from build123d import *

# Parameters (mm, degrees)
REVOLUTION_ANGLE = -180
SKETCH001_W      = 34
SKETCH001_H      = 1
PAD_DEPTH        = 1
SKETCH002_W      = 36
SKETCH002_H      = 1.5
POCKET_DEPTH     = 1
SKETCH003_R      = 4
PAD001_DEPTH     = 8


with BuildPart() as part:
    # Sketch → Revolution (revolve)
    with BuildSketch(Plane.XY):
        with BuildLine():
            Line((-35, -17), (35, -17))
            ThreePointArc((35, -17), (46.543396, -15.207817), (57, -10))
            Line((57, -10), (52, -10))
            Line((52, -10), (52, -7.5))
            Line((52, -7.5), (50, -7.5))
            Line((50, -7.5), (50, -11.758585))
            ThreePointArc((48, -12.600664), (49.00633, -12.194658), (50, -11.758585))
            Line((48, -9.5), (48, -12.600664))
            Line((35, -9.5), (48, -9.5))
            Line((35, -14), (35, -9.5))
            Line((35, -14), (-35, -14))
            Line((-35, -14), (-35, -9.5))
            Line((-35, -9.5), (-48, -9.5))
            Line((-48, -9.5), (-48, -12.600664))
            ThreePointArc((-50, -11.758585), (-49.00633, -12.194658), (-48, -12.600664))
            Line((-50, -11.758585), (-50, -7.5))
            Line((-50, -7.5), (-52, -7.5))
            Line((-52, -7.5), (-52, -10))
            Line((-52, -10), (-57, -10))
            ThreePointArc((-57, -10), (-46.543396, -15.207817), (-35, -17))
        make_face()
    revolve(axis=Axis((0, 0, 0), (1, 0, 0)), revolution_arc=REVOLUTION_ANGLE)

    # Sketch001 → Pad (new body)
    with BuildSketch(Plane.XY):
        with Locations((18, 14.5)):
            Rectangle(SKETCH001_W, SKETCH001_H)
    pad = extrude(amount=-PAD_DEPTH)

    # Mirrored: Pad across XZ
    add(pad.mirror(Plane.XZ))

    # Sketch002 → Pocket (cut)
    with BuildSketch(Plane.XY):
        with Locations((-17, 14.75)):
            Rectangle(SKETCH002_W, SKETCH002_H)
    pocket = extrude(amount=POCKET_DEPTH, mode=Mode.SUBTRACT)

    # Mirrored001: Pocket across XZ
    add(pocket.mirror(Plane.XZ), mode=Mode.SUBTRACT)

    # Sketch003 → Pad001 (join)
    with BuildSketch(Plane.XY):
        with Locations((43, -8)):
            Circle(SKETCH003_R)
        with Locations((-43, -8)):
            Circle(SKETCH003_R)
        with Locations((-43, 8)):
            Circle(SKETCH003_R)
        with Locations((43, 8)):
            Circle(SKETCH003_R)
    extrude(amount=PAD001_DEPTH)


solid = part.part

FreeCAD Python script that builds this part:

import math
import FreeCAD as App
import Part
import Sketcher


def add_polygon(sketch, points):
    """Adds a closed chain of lines whose ends are joined by coincident constraints."""
    first, n = sketch.GeometryCount, len(points)
    for a, b in zip(points, points[1:] + points[:1]):
        sketch.addGeometry(Part.LineSegment(App.Vector(*a, 0), App.Vector(*b, 0)), False)
    for i in range(n):
        sketch.addConstraint(Sketcher.Constraint("Coincident", first + i, 2, first + (i + 1) % n, 1))

doc = App.newDocument("Part")
body = doc.addObject("PartDesign::Body", "Body")

# Sketch on XY plane
sketch1 = body.newObject("Sketcher::SketchObject", "Sketch")
sketch1.AttachmentSupport = (doc.getObject("XY_Plane"), [""])
sketch1.MapMode = "FlatFace"
sketch1.addGeometry([
    Part.LineSegment(App.Vector(-35, -17, 0), App.Vector(35, -17, 0)),  # 0
    Part.ArcOfCircle(Part.Circle(App.Vector(34.999998, 21.071435, 0), App.Vector(0, 0, 1), 38.071435), math.radians(-89.999997), math.radians(-54.699754)),  # 1
    Part.LineSegment(App.Vector(57, -10, 0), App.Vector(52, -10, 0)),  # 2
    Part.LineSegment(App.Vector(52, -10, 0), App.Vector(52, -7.5, 0)),  # 3
    Part.LineSegment(App.Vector(52, -7.5, 0), App.Vector(50, -7.5, 0)),  # 4
    Part.LineSegment(App.Vector(50, -7.5, 0), App.Vector(50, -11.758585, 0)),  # 5
    Part.ArcOfCircle(Part.Circle(App.Vector(34.99989, 21.071674, 0), App.Vector(0, 0, 1), 36.094725), math.radians(-68.88958), math.radians(-65.44439)),  # 6
    Part.LineSegment(App.Vector(48, -12.600664, 0), App.Vector(48, -9.5, 0)),  # 7
    Part.LineSegment(App.Vector(48, -9.5, 0), App.Vector(35, -9.5, 0)),  # 8
    Part.LineSegment(App.Vector(35, -9.5, 0), App.Vector(35, -14, 0)),  # 9
    Part.LineSegment(App.Vector(35, -14, 0), App.Vector(-35, -14, 0)),  # 10
    Part.LineSegment(App.Vector(-35, -14, 0), App.Vector(-35, -9.5, 0)),  # 11
    Part.LineSegment(App.Vector(-35, -9.5, 0), App.Vector(-48, -9.5, 0)),  # 12
    Part.LineSegment(App.Vector(-48, -9.5, 0), App.Vector(-48, -12.600664, 0)),  # 13
    Part.ArcOfCircle(Part.Circle(App.Vector(-34.99989, 21.071674, 0), App.Vector(0, 0, 1), 36.094725), math.radians(-114.55561), math.radians(-111.11042)),  # 14
    Part.LineSegment(App.Vector(-50, -11.758585, 0), App.Vector(-50, -7.5, 0)),  # 15
    Part.LineSegment(App.Vector(-50, -7.5, 0), App.Vector(-52, -7.5, 0)),  # 16
    Part.LineSegment(App.Vector(-52, -7.5, 0), App.Vector(-52, -10, 0)),  # 17
    Part.LineSegment(App.Vector(-52, -10, 0), App.Vector(-57, -10, 0)),  # 18
    Part.ArcOfCircle(Part.Circle(App.Vector(-34.999998, 21.071435, 0), App.Vector(0, 0, 1), 38.071435), math.radians(-125.300246), math.radians(-90.000003)),  # 19
], False)
sketch1.addConstraint([
    Sketcher.Constraint("Coincident", 0, 2, 1, 1),
    Sketcher.Constraint("Coincident", 1, 2, 2, 1),
    Sketcher.Constraint("Coincident", 2, 2, 3, 1),
    Sketcher.Constraint("Coincident", 3, 2, 4, 1),
    Sketcher.Constraint("Coincident", 4, 2, 5, 1),
    Sketcher.Constraint("Coincident", 5, 2, 6, 2),
    Sketcher.Constraint("Coincident", 6, 1, 7, 1),
    Sketcher.Constraint("Coincident", 7, 2, 8, 1),
    Sketcher.Constraint("Coincident", 8, 2, 9, 1),
    Sketcher.Constraint("Coincident", 9, 2, 10, 1),
    Sketcher.Constraint("Coincident", 10, 2, 11, 1),
    Sketcher.Constraint("Coincident", 11, 2, 12, 1),
    Sketcher.Constraint("Coincident", 12, 2, 13, 1),
    Sketcher.Constraint("Coincident", 13, 2, 14, 2),
    Sketcher.Constraint("Coincident", 14, 1, 15, 1),
    Sketcher.Constraint("Coincident", 15, 2, 16, 1),
    Sketcher.Constraint("Coincident", 16, 2, 17, 1),
    Sketcher.Constraint("Coincident", 17, 2, 18, 1),
    Sketcher.Constraint("Coincident", 18, 2, 19, 1),
    Sketcher.Constraint("Coincident", 19, 2, 0, 1),
    Sketcher.Constraint("Horizontal", 0),
    Sketcher.Constraint("Horizontal", 2),
    Sketcher.Constraint("Vertical", 3),
    Sketcher.Constraint("Horizontal", 4),
    Sketcher.Constraint("Vertical", 5),
    Sketcher.Constraint("Vertical", 7),
    Sketcher.Constraint("Horizontal", 8),
    Sketcher.Constraint("Vertical", 9),
    Sketcher.Constraint("Horizontal", 10),
    Sketcher.Constraint("Vertical", 11),
    Sketcher.Constraint("Horizontal", 12),
    Sketcher.Constraint("Vertical", 13),
    Sketcher.Constraint("Vertical", 15),
    Sketcher.Constraint("Horizontal", 16),
    Sketcher.Constraint("Vertical", 17),
    Sketcher.Constraint("Horizontal", 18),
    Sketcher.Constraint("DistanceX", 0, 1, 0, 2, 70.0),
    Sketcher.Constraint("DistanceX", 2, 2, 2, 1, 5.0),
    Sketcher.Constraint("DistanceX", 4, 2, 4, 1, 2.0),
    Sketcher.Constraint("DistanceX", 8, 2, 8, 1, 13.0),
    Sketcher.Constraint("DistanceX", 10, 2, 10, 1, 70.0),
    Sketcher.Constraint("DistanceX", 12, 2, 12, 1, 13.0),
    Sketcher.Constraint("DistanceX", 16, 2, 16, 1, 2.0),
    Sketcher.Constraint("DistanceX", 18, 2, 18, 1, 5.0),
    Sketcher.Constraint("DistanceY", 3, 1, 3, 2, 2.5),
    Sketcher.Constraint("DistanceY", 9, 2, 9, 1, 4.5),
    Sketcher.Constraint("DistanceY", 11, 1, 11, 2, 4.5),
    Sketcher.Constraint("DistanceY", 17, 2, 17, 1, 2.5),
    Sketcher.Constraint("DistanceX", -1, 1, 1, 3, 34.999998),
    Sketcher.Constraint("DistanceX", 19, 3, -1, 1, 34.999998),
    Sketcher.Constraint("DistanceX", -1, 1, 0, 2, 35.0),
    Sketcher.Constraint("DistanceY", 0, 2, -1, 1, 17.0),
    Sketcher.Constraint("DistanceX", -1, 1, 1, 2, 57.0),
    Sketcher.Constraint("DistanceY", 1, 2, -1, 1, 10.0),
    Sketcher.Constraint("DistanceX", -1, 1, 6, 1, 48.0),
    Sketcher.Constraint("DistanceY", 9, 2, -1, 1, 14.0),
    Sketcher.Constraint("DistanceX", 14, 1, -1, 1, 50.0),
    Sketcher.Constraint("DistanceY", 17, 2, -1, 1, 10.0),
    Sketcher.Constraint("Radius", 6, 36.094725),
    Sketcher.Constraint("Radius", 14, 36.094725),
    Sketcher.Constraint("DistanceY", 13, 2, 19, 3, 33.672099),
    Sketcher.Constraint("DistanceY", 5, 2, 5, 1, 4.258585),
    Sketcher.Constraint("DistanceY", 7, 1, 7, 2, 3.100664),
    Sketcher.Constraint("DistanceY", 15, 1, 15, 2, 4.258585),
])
revolution = body.newObject("PartDesign::Revolution", "Revolution")
revolution.Profile = sketch1
revolution.ReferenceAxis = (sketch1, ["H_Axis"])
revolution.Angle = 180
revolution.Reversed = True

# Sketch on XY plane
sketch2 = body.newObject("Sketcher::SketchObject", "Sketch001")
sketch2.AttachmentSupport = (doc.getObject("XY_Plane"), [""])
sketch2.MapMode = "FlatFace"
add_polygon(sketch2, [(1, 15), (1, 14), (35, 14), (35, 15)])  # lines 0-3
sketch2.addConstraint([
    Sketcher.Constraint("Vertical", 0),
    Sketcher.Constraint("Horizontal", 1),
    Sketcher.Constraint("Vertical", 2),
    Sketcher.Constraint("Horizontal", 3),
    Sketcher.Constraint("DistanceX", 1, 1, 1, 2, 34.0),
    Sketcher.Constraint("DistanceY", 0, 2, 0, 1, 1.0),
    Sketcher.Constraint("DistanceX", -1, 1, 0, 2, 1.0),
    Sketcher.Constraint("DistanceY", -1, 1, 0, 2, 14.0),
])
pad1 = body.newObject("PartDesign::Pad", "Pad")
pad1.Profile = sketch2
pad1.Length = 1
pad1.Reversed = True
doc.recompute()

mirrored = body.newObject("PartDesign::Mirrored", "Mirrored")
mirrored.Originals = [pad1]
mirrored.MirrorPlane = (doc.getObject("XZ_Plane"), [""])
body.Tip = mirrored

# Sketch on XY plane
sketch3 = body.newObject("Sketcher::SketchObject", "Sketch002")
sketch3.AttachmentSupport = (doc.getObject("XY_Plane"), [""])
sketch3.MapMode = "FlatFace"
add_polygon(sketch3, [(-35, 15.5), (-35, 14), (1, 14), (1, 15.5)])  # lines 0-3
sketch3.addConstraint([
    Sketcher.Constraint("Vertical", 0),
    Sketcher.Constraint("Horizontal", 1),
    Sketcher.Constraint("Vertical", 2),
    Sketcher.Constraint("Horizontal", 3),
    Sketcher.Constraint("DistanceX", 1, 1, 1, 2, 36.0),
    Sketcher.Constraint("DistanceY", 0, 2, 0, 1, 1.5),
    Sketcher.Constraint("DistanceX", 0, 2, -1, 1, 35.0),
    Sketcher.Constraint("DistanceY", -1, 1, 0, 2, 14.0),
])
pocket1 = body.newObject("PartDesign::Pocket", "Pocket")
pocket1.Profile = sketch3
pocket1.Length = 1
pocket1.Reversed = True
doc.recompute()

mirrored2 = body.newObject("PartDesign::Mirrored", "Mirrored001")
mirrored2.Originals = [pocket1]
mirrored2.MirrorPlane = (doc.getObject("XZ_Plane"), [""])
body.Tip = mirrored2

# Sketch on XY plane
sketch4 = body.newObject("Sketcher::SketchObject", "Sketch003")
sketch4.AttachmentSupport = (doc.getObject("XY_Plane"), [""])
sketch4.MapMode = "FlatFace"
sketch4.addGeometry([
    Part.Circle(App.Vector(43, -8, 0), App.Vector(0, 0, 1), 4),
    Part.Circle(App.Vector(-43, -8, 0), App.Vector(0, 0, 1), 4),
    Part.Circle(App.Vector(-43, 8, 0), App.Vector(0, 0, 1), 4),
    Part.Circle(App.Vector(43, 8, 0), App.Vector(0, 0, 1), 4),
], False)
sketch4.addConstraint([
    Sketcher.Constraint("Equal", 0, 1),
    Sketcher.Constraint("Equal", 1, 2),
    Sketcher.Constraint("Equal", 2, 3),
    Sketcher.Constraint("Symmetric", 0, 3, 2, 3, -1, 1),
    Sketcher.Constraint("Symmetric", 1, 3, 3, 3, -1, 1),
    Sketcher.Constraint("Symmetric", 0, 3, 1, 3, -2),
    Sketcher.Constraint("Diameter", 0, 8.0),
    Sketcher.Constraint("DistanceX", -1, 1, 0, 3, 43.0),
    Sketcher.Constraint("DistanceY", 0, 3, -1, 1, 8.0),
])
pad2 = body.newObject("PartDesign::Pad", "Pad001")
pad2.Profile = sketch4
pad2.Length = 8

doc.recompute()
